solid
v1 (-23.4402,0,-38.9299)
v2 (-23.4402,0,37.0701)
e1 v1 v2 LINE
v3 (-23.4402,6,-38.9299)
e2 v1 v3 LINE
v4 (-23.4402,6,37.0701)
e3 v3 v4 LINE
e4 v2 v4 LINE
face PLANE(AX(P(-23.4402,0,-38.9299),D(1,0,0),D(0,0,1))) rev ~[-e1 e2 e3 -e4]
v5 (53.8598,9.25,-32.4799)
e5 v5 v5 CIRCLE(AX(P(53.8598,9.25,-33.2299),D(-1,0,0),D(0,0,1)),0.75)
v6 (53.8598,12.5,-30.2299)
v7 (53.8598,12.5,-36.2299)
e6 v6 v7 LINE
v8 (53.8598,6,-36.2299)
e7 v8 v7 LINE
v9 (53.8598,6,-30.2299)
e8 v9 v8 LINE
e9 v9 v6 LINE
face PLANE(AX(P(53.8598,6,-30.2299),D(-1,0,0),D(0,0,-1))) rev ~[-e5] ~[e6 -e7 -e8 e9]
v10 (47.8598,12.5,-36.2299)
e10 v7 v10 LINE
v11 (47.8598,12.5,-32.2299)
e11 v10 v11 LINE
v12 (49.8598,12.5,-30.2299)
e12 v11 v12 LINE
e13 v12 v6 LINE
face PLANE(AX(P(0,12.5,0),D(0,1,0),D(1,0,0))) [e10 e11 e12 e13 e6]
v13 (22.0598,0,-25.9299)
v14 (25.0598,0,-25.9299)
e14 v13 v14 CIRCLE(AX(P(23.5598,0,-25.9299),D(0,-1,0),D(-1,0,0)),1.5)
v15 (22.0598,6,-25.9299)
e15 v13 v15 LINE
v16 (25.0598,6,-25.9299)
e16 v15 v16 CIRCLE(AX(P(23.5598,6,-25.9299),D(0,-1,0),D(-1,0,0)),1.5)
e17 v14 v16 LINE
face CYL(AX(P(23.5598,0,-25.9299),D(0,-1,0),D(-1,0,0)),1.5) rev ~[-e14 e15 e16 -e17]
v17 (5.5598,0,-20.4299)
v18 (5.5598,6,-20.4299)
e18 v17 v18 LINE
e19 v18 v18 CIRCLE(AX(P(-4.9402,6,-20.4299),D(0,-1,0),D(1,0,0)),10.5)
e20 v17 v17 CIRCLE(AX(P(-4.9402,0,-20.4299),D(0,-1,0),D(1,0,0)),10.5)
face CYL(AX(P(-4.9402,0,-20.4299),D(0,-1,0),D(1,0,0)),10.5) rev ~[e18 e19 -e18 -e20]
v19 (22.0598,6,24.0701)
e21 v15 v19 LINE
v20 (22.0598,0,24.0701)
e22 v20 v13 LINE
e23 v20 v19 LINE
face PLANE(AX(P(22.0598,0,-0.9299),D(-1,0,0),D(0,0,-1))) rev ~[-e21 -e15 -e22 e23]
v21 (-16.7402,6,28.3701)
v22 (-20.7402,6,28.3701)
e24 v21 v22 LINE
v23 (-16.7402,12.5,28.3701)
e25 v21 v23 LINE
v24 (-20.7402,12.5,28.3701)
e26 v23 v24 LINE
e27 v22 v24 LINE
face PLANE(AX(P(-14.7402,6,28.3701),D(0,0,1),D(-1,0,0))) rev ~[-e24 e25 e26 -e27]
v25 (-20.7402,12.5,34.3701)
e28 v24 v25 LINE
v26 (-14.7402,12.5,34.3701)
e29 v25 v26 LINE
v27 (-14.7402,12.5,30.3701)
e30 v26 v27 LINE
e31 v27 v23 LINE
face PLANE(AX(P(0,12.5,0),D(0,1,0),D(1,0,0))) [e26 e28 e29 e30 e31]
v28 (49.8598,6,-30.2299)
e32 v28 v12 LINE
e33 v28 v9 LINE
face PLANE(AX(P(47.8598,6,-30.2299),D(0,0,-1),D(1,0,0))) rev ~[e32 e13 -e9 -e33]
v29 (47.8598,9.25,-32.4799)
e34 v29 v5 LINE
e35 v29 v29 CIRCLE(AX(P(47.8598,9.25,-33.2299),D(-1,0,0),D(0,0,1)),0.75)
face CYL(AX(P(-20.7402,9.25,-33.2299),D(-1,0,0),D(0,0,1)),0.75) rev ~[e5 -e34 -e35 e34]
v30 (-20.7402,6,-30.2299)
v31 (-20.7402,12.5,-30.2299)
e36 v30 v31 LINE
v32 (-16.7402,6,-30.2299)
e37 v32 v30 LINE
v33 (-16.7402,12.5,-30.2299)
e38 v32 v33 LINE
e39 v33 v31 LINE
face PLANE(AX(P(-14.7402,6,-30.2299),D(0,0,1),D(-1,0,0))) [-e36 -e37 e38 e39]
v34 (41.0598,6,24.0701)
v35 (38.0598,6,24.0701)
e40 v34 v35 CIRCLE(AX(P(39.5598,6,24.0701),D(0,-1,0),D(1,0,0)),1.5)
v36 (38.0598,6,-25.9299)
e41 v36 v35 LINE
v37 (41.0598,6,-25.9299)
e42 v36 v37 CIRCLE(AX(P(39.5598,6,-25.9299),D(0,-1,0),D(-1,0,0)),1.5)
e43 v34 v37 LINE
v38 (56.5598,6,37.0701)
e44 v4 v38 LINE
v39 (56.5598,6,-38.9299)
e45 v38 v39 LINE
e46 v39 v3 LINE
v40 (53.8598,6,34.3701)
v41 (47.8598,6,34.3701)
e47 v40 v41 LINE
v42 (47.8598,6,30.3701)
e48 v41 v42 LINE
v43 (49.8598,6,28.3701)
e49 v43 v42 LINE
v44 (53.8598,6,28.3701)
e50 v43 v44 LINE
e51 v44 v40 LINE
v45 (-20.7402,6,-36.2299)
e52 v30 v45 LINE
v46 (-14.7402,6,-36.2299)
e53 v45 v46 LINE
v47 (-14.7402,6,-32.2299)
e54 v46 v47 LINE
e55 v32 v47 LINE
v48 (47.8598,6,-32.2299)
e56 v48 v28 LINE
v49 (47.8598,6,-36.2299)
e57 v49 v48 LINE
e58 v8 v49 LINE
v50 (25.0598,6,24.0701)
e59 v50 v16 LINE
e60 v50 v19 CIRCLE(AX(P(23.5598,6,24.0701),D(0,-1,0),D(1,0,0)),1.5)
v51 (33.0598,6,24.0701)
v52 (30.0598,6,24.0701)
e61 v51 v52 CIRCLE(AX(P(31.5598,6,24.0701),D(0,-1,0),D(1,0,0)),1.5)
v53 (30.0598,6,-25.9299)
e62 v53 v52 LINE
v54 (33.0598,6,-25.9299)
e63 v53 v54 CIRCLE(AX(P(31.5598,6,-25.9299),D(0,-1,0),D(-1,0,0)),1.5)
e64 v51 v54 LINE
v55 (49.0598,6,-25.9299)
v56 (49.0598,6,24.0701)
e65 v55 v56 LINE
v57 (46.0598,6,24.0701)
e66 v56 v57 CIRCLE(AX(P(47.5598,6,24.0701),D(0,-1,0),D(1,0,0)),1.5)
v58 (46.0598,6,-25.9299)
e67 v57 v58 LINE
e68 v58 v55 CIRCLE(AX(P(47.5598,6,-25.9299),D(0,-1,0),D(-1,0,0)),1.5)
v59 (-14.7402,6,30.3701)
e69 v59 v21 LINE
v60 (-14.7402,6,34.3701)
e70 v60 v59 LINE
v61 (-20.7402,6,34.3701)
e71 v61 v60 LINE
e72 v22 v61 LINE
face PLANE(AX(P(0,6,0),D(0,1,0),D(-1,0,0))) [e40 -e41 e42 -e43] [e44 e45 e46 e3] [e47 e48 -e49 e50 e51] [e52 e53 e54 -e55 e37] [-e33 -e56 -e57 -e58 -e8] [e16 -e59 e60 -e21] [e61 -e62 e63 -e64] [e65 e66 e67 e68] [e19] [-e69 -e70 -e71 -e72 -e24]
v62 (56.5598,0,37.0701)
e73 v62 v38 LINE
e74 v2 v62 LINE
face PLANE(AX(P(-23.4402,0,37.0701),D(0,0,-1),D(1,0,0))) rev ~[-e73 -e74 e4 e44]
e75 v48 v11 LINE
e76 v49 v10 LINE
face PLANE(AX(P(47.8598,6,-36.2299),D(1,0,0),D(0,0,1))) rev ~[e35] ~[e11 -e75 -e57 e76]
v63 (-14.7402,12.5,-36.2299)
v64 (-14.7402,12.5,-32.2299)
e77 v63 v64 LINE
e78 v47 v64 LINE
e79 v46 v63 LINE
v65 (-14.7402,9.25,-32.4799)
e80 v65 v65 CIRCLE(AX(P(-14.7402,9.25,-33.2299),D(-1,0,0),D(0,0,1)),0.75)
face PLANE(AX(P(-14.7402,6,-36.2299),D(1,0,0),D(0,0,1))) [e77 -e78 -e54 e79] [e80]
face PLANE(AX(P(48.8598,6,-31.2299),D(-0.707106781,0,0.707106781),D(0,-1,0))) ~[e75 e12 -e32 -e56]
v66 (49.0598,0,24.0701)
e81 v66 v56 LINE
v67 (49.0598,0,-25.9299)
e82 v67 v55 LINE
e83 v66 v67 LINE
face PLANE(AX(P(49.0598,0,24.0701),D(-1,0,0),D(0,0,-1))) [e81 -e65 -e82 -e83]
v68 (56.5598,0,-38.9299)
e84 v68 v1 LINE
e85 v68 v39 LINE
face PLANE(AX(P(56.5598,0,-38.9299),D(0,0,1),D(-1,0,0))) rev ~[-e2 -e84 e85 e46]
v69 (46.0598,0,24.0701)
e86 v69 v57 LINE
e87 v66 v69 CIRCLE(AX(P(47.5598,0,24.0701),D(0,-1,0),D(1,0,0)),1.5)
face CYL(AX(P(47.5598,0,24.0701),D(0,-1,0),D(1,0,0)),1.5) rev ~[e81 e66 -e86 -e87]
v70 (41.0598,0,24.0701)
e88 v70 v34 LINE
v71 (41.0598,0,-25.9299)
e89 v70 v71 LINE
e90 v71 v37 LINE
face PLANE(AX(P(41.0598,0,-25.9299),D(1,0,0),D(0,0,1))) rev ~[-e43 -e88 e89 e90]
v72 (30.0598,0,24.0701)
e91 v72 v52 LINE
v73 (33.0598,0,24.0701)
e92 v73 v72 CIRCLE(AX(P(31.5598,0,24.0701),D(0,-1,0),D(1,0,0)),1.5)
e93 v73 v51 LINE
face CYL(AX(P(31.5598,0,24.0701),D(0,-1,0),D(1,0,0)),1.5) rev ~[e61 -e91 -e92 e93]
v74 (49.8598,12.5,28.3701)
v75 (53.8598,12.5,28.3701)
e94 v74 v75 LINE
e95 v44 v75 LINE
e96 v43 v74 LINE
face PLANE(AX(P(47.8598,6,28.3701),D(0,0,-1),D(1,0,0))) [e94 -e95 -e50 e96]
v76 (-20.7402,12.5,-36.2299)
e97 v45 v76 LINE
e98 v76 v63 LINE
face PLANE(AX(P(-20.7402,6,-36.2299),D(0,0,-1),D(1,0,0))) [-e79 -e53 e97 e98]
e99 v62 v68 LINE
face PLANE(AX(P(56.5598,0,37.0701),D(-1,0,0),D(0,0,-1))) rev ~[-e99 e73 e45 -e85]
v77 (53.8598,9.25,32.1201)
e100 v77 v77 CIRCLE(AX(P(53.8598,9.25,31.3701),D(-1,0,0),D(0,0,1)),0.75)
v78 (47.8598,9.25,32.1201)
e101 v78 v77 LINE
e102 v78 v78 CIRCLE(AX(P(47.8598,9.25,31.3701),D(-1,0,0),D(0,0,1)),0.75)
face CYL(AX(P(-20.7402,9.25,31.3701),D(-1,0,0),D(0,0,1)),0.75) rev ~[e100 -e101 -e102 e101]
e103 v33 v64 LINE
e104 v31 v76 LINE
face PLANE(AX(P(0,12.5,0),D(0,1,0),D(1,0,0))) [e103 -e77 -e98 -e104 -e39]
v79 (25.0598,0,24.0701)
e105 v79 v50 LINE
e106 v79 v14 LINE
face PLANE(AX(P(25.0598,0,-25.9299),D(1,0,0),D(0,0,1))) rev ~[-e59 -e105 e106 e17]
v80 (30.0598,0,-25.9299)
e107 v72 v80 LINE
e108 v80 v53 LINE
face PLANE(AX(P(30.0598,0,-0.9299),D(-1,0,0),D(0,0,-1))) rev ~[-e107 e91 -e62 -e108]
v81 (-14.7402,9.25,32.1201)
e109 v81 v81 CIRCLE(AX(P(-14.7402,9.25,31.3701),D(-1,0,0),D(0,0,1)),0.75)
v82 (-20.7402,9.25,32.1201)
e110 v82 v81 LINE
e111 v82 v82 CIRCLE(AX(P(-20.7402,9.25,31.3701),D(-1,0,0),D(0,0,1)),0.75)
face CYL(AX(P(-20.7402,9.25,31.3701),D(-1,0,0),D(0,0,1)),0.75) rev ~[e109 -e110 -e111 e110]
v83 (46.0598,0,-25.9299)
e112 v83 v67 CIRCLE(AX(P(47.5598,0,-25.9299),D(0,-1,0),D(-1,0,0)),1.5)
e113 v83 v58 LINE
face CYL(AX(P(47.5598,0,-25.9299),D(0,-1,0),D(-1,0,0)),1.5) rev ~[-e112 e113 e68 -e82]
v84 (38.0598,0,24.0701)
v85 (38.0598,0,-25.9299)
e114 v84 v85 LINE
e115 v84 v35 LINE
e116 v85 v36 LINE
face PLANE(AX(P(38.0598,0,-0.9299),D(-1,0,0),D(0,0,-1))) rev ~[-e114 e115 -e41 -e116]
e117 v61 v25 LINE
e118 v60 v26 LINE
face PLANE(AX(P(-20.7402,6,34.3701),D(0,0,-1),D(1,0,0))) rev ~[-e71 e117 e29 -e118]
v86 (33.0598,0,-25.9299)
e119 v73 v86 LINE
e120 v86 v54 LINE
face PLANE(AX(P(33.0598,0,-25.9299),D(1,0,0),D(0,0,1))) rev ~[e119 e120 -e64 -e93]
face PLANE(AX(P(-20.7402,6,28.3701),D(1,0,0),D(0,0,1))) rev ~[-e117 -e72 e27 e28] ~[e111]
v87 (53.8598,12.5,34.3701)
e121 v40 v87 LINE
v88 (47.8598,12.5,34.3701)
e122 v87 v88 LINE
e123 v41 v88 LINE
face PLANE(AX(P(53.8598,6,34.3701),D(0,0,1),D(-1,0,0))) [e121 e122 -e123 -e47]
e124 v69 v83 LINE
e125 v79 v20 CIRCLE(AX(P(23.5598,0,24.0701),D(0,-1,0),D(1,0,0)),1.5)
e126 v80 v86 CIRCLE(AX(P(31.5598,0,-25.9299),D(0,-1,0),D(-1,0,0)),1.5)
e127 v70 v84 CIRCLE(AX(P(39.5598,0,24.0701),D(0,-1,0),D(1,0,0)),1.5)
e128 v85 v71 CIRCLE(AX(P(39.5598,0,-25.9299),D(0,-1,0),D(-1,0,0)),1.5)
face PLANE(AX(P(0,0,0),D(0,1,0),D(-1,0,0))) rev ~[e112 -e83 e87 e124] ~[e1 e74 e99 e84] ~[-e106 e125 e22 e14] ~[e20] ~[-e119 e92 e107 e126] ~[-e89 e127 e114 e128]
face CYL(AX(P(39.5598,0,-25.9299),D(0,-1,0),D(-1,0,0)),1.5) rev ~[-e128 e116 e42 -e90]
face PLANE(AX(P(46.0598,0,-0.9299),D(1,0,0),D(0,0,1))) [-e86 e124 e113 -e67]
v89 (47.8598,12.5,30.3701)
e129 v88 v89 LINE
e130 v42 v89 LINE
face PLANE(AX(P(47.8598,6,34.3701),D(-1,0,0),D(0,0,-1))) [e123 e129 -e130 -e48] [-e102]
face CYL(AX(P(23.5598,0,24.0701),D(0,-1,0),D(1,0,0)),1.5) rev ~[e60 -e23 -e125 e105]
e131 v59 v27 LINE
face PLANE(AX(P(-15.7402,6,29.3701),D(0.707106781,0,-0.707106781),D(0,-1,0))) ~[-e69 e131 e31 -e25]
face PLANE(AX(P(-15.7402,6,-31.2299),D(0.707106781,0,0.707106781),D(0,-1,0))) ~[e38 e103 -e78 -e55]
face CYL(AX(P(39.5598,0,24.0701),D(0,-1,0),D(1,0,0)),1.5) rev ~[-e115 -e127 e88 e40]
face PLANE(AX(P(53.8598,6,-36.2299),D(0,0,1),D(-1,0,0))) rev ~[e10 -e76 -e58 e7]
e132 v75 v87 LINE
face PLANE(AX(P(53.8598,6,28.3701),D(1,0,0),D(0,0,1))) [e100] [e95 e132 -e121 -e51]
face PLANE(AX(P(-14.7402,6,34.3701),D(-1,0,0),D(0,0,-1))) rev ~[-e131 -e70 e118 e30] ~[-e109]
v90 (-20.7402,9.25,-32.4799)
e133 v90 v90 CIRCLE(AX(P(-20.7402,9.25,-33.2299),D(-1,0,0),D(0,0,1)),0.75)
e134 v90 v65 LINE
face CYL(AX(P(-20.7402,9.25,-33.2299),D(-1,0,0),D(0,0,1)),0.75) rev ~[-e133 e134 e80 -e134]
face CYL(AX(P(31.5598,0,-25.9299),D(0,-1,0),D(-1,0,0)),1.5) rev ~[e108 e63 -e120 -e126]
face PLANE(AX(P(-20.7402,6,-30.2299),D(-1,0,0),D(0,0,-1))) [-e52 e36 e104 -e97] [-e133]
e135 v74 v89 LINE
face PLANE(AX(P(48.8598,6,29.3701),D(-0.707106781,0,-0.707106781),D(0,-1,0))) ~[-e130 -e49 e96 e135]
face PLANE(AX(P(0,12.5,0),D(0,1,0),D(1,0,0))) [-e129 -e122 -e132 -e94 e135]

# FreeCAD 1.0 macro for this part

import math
import FreeCAD as App
import Part
import Sketcher


def edges_at(feature, points):
    """Names of the edges that pass closest to the given points."""
    edges = feature.Shape.Edges
    near = lambda p: min(range(len(edges)), key=lambda i: edges[i].distToShape(Part.Vertex(*p))[0])
    return sorted({f"Edge{near(p) + 1}" for p in points})


def add_polygon(sketch, points):
    """Adds a closed chain of lines whose ends are joined by coincident constraints."""
    first, n = sketch.GeometryCount, len(points)
    for a, b in zip(points, points[1:] + points[:1]):
        sketch.addGeometry(Part.LineSegment(App.Vector(*a, 0), App.Vector(*b, 0)), False)
    for i in range(n):
        sketch.addConstraint(Sketcher.Constraint("Coincident", first + i, 2, first + (i + 1) % n, 1))

doc = App.newDocument("Part")
body = doc.addObject("PartDesign::Body", "Body")

sketch1 = body.newObject("Sketcher::SketchObject", "Sketch")
sketch1.AttachmentSupport = (doc.getObject("XZ_Plane"), [""])
sketch1.MapMode = "FlatFace"
add_polygon(sketch1, [(-23.4402, -38.9299), (-23.4402, 37.0701), (56.5598, 37.0701), (56.5598, -38.9299)])
sketch1.addConstraint([
    Sketcher.Constraint("Vertical", 0),
    Sketcher.Constraint("Horizontal", 1),
    Sketcher.Constraint("Vertical", 2),
    Sketcher.Constraint("Horizontal", 3),
    Sketcher.Constraint("DistanceX", 1, 1, 1, 2, 80.0),
    Sketcher.Constraint("DistanceY", 0, 1, 0, 2, 76.0),
    Sketcher.Constraint("DistanceY", -1, 1, 0, 2, 37.07),
    Sketcher.Constraint("DistanceX", 0, 2, -1, 1, 23.4402),
])
pad1 = body.newObject("PartDesign::Pad", "Pad")
pad1.Profile = sketch1
pad1.Length = 6
pad1.Reversed = True

sketch2 = body.newObject("Sketcher::SketchObject", "Sketch001")
sketch2.AttachmentSupport = (doc.getObject("XZ_Plane"), [""])
sketch2.MapMode = "FlatFace"
sketch2.addGeometry([
    Part.LineSegment(App.Vector(25.0598, -25.9299, 0), App.Vector(25.0598, 24.0701, 0)),
    Part.ArcOfCircle(Part.Circle(App.Vector(23.5598, 24.0701, 0), App.Vector(0, 0, 1), 1.5), math.radians(0), math.radians(180)),
    Part.LineSegment(App.Vector(22.0598, 24.0701, 0), App.Vector(22.0598, -25.9299, 0)),
    Part.ArcOfCircle(Part.Circle(App.Vector(23.5598, -25.9299, 0), App.Vector(0, 0, 1), 1.5), math.radians(180), math.radians(360)),
    Part.LineSegment(App.Vector(33.0598, -25.9299, 0), App.Vector(33.0598, 24.0701, 0)),
    Part.ArcOfCircle(Part.Circle(App.Vector(31.5598, 24.0701, 0), App.Vector(0, 0, 1), 1.5), math.radians(0), math.radians(180)),
    Part.LineSegment(App.Vector(30.0598, 24.0701, 0), App.Vector(30.0598, -25.9299, 0)),
    Part.ArcOfCircle(Part.Circle(App.Vector(31.5598, -25.9299, 0), App.Vector(0, 0, 1), 1.5), math.radians(180), math.radians(360)),
    Part.LineSegment(App.Vector(41.0598, -25.9299, 0), App.Vector(41.0598, 24.0701, 0)),
    Part.ArcOfCircle(Part.Circle(App.Vector(39.5598, 24.0701, 0), App.Vector(0, 0, 1), 1.5), math.radians(0), math.radians(180)),
    Part.LineSegment(App.Vector(38.0598, 24.0701, 0), App.Vector(38.0598, -25.9299, 0)),
    Part.ArcOfCircle(Part.Circle(App.Vector(39.5598, -25.9299, 0), App.Vector(0, 0, 1), 1.5), math.radians(180), math.radians(360)),
    Part.ArcOfCircle(Part.Circle(App.Vector(47.5598, 24.0701, 0), App.Vector(0, 0, 1), 1.5), math.radians(0), math.radians(180)),
    Part.LineSegment(App.Vector(46.0598, 24.0701, 0), App.Vector(46.0598, -25.9299, 0)),
    Part.ArcOfCircle(Part.Circle(App.Vector(47.5598, -25.9299, 0), App.Vector(0, 0, 1), 1.5), math.radians(180), math.radians(360)),
    Part.LineSegment(App.Vector(49.0598, -25.9299, 0), App.Vector(49.0598, 24.0701, 0)),
    Part.Circle(App.Vector(-4.9402, -20.4299, 0), App.Vector(0, 0, 1), 10.5),
], False)
sketch2.addConstraint([
    Sketcher.Constraint("Tangent", 0, 2, 1, 1),
    Sketcher.Constraint("Tangent", 1, 2, 2, 1),
    Sketcher.Constraint("Tangent", 2, 2, 3, 1),
    Sketcher.Constraint("Tangent", 3, 2, 0, 1),
    Sketcher.Constraint("Tangent", 4, 2, 5, 1),
    Sketcher.Constraint("Tangent", 5, 2, 6, 1),
    Sketcher.Constraint("Tangent", 6, 2, 7, 1),
    Sketcher.Constraint("Tangent", 7, 2, 4, 1),
    Sketcher.Constraint("Tangent", 8, 2, 9, 1),
    Sketcher.Constraint("Tangent", 9, 2, 10, 1),
    Sketcher.Constraint("Tangent", 10, 2, 11, 1),
    Sketcher.Constraint("Tangent", 11, 2, 8, 1),
    Sketcher.Constraint("Tangent", 12, 2, 13, 1),
    Sketcher.Constraint("Tangent", 13, 2, 14, 1),
    Sketcher.Constraint("Tangent", 14, 2, 15, 1),
    Sketcher.Constraint("Tangent", 15, 2, 12, 1),
    Sketcher.Constraint("Vertical", 0),
    Sketcher.Constraint("Vertical", 2),
    Sketcher.Constraint("Vertical", 4),
    Sketcher.Constraint("Vertical", 6),
    Sketcher.Constraint("Vertical", 8),
    Sketcher.Constraint("Vertical", 10),
    Sketcher.Constraint("Vertical", 13),
    Sketcher.Constraint("Vertical", 15),
    Sketcher.Constraint("Equal", 3, 5),
    Sketcher.Constraint("Equal", 7, 9),
    Sketcher.Constraint("Equal", 11, 12),
    Sketcher.Constraint("Horizontal", 1, 3, 5, 3),
    Sketcher.Constraint("Horizontal", 3, 3, 7, 3),
    Sketcher.Constraint("Horizontal", 5, 3, 9, 3),
    Sketcher.Constraint("Horizontal", 7, 3, 11, 3),
    Sketcher.Constraint("Horizontal", 9, 3, 12, 3),
    Sketcher.Constraint("Horizontal", 11, 3, 14, 3),
    Sketcher.Constraint("Diameter", 16, 21.0),
    Sketcher.Constraint("Radius", 1, 1.5),
    Sketcher.Constraint("DistanceY", 0, 1, 0, 2, 50.0),
    Sketcher.Constraint("DistanceX", 0, 2, 5, 2, 5.0),
    Sketcher.Constraint("DistanceX", 4, 2, 9, 2, 5.0),
    Sketcher.Constraint("DistanceX", 8, 2, 12, 2, 5.0),
    Sketcher.Constraint("DistanceX", 16, 3, 2, 2, 27.0),
    Sketcher.Constraint("DistanceY", 3, 3, 16, 3, 5.5),
    Sketcher.Constraint("DistanceY", -1, 1, 1, 3, 24.07),
    Sketcher.Constraint("DistanceX", -1, 1, 1, 3, 23.5598),
])
pocket1 = body.newObject("PartDesign::Pocket", "Pocket")
pocket1.Profile = sketch2
pocket1.Length = 10

sketch3 = body.newObject("Sketcher::SketchObject", "Sketch002")
sketch3.AttachmentSupport = (doc.getObject("XZ_Plane"), [""])
sketch3.MapMode = "FlatFace"
sketch3.AttachmentOffset = App.Placement(App.Vector(0, 0, -6), App.Rotation())
add_polygon(sketch3, [(-20.7402, 28.3701), (-20.7402, 34.3701), (-14.7402, 34.3701), (-14.7402, 28.3701)])
add_polygon(sketch3, [(-14.7402, -36.2299), (-20.7402, -36.2299), (-20.7402, -30.2299), (-14.7402, -30.2299)])
add_polygon(sketch3, [(47.8598, -36.2299), (47.8598, -30.2299), (53.8598, -30.2299), (53.8598, -36.2299)])
add_polygon(sketch3, [(47.8598, 34.3701), (53.8598, 34.3701), (53.8598, 28.3701), (47.8598, 28.3701)])
sketch3.addConstraint([
    Sketcher.Constraint("Vertical", 0),
    Sketcher.Constraint("Horizontal", 1),
    Sketcher.Constraint("Vertical", 2),
    Sketcher.Constraint("Horizontal", 3),
    Sketcher.Constraint("Horizontal", 4),
    Sketcher.Constraint("Vertical", 5),
    Sketcher.Constraint("Horizontal", 6),
    Sketcher.Constraint("Vertical", 7),
    Sketcher.Constraint("Vertical", 8),
    Sketcher.Constraint("Horizontal", 9),
    Sketcher.Constraint("Vertical", 10),
    Sketcher.Constraint("Horizontal", 11),
    Sketcher.Constraint("Horizontal", 12),
    Sketcher.Constraint("Vertical", 13),
    Sketcher.Constraint("Horizontal", 14),
    Sketcher.Constraint("Vertical", 15),
    Sketcher.Constraint("Horizontal", 6, 2, 8, 2),
    Sketcher.Constraint("Horizontal", 7, 2, 10, 2),
    Sketcher.Constraint("Horizontal", 1, 2, 12, 2),
    Sketcher.Constraint("Horizontal", 3, 2, 13, 2),
    Sketcher.Constraint("Vertical", 3, 2, 4, 2),
    Sketcher.Constraint("Vertical", 2, 2, 6, 2),
    Sketcher.Constraint("Vertical", 10, 2, 12, 2),
    Sketcher.Constraint("Vertical", 11, 2, 14, 2),
    Sketcher.Constraint("Equal", 6, 9),
    Sketcher.Constraint("Equal", 14, 0),
    Sketcher.Constraint("Equal", 2, 5),
    Sketcher.Constraint("DistanceX", 1, 1, 1, 2, 6.0),
    Sketcher.Constraint("DistanceY", 4, 2, 3, 2, 64.6),
    Sketcher.Constraint("DistanceX", 6, 2, 8, 2, 62.6),
    Sketcher.Constraint("DistanceY", -1, 1, 0, 2, 34.37),
    Sketcher.Constraint("DistanceX", 0, 2, -1, 1, 20.7402),
])
pad2 = body.newObject("PartDesign::Pad", "Pad001")
pad2.Profile = sketch3
pad2.Length = 6.5
pad2.Reversed = True

sketch4 = body.newObject("Sketcher::SketchObject", "Sketch003")
sketch4.AttachmentSupport = (doc.getObject("YZ_Plane"), [""])
sketch4.MapMode = "FlatFace"
sketch4.AttachmentOffset = App.Placement(App.Vector(0, 0, -20.7402), App.Rotation())
sketch4.addGeometry([
    Part.Circle(App.Vector(9.25, 31.3701, 0), App.Vector(0, 0, 1), 0.75),
    Part.Circle(App.Vector(9.25, -33.2299, 0), App.Vector(0, 0, 1), 0.75),
], False)
sketch4.addConstraint([
    Sketcher.Constraint("Equal", 0, 1),
    Sketcher.Constraint("Vertical", 0, 3, 1, 3),
    Sketcher.Constraint("Diameter", 0, 1.5),
    Sketcher.Constraint("DistanceY", 1, 3, 0, 3, 64.6),
    Sketcher.Constraint("DistanceX", -1, 1, 0, 3, 9.25),
    Sketcher.Constraint("DistanceY", -1, 1, 0, 3, 31.37),
])
pocket2 = body.newObject("PartDesign::Pocket", "Pocket001")
pocket2.Profile = sketch4
pocket2.Type = "ThroughAll"
pocket2.Reversed = True
doc.recompute()

chamfer = body.newObject("PartDesign::Chamfer", "Chamfer")
chamfer.Base = (pocket2, edges_at(pocket2, [
    (-14.74, 9.25, 28.37),
    (-14.74, 9.25, -30.23),
    (47.86, 9.25, 28.37),
    (47.86, 9.25, -30.23),
]))
chamfer.Size = 2

doc.recompute()
